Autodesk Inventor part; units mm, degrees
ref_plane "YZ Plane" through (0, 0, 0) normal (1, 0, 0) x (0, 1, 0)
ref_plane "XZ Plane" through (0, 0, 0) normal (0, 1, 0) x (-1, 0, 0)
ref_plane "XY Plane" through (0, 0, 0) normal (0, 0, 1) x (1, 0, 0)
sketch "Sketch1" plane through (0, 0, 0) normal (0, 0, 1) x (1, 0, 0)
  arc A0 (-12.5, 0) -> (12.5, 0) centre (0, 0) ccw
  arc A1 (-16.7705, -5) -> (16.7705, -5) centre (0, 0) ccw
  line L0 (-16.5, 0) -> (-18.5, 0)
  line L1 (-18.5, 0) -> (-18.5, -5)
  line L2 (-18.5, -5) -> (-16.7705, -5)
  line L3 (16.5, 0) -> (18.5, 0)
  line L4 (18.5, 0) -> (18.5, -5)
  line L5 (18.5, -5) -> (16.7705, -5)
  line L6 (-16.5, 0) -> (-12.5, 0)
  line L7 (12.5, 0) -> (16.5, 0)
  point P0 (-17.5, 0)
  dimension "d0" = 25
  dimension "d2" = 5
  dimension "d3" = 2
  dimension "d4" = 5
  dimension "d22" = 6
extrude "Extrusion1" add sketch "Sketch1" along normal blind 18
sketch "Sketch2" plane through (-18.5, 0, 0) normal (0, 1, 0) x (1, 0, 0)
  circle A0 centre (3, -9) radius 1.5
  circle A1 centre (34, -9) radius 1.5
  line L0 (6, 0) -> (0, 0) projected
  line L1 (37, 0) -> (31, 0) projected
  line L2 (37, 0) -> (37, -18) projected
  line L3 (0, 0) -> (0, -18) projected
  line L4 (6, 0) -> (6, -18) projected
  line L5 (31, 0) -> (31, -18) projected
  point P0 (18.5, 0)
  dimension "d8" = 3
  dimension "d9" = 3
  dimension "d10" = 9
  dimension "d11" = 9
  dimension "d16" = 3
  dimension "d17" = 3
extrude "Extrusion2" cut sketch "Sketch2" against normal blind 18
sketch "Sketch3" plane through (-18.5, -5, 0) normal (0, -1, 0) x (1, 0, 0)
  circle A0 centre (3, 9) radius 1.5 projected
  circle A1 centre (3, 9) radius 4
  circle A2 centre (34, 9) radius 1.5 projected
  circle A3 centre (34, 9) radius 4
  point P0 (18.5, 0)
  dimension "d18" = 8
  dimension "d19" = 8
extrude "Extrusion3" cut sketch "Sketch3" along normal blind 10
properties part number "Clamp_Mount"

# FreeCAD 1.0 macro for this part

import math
import FreeCAD as App
import Part
import Sketcher

V = App.Vector
Q = App.Units.Quantity

doc = App.newDocument("Part")
body = doc.addObject("PartDesign::Body", "Body")

# Sketch on XY plane
sketch1 = doc.addObject("Sketcher::SketchObject", "Sketch")
body.addObject(sketch1)
sketch1.AttachmentSupport = (doc.XY_Plane, [""])
sketch1.MapMode = "FlatFace"
sketch1.addGeometry(Part.ArcOfCircle(Part.Circle(V(0, 0, 0), V(0, 0, 1), 12.5), math.radians(180), math.radians(360)), False)
sketch1.addGeometry(Part.LineSegment(V(-12.5, 0, 0), V(-18.5, 0, 0)), False)
sketch1.addGeometry(Part.LineSegment(V(-18.5, 0, 0), V(-18.5, -5, 0)), False)
sketch1.addGeometry(Part.LineSegment(V(-18.5, -5, 0), V(-16.8, -5, 0)), False)
sketch1.addGeometry(Part.ArcOfCircle(Part.Circle(V(0, 0, 0), V(0, 0, 1), 17.5), math.radians(-163), math.radians(-17)), False)
sketch1.addGeometry(Part.LineSegment(V(16.8, -5, 0), V(18.5, -5, 0)), False)
sketch1.addGeometry(Part.LineSegment(V(18.5, -5, 0), V(18.5, 0, 0)), False)
sketch1.addGeometry(Part.LineSegment(V(18.5, 0, 0), V(12.5, 0, 0)), False)
sketch1.addConstraint(Sketcher.Constraint("Coincident", 0, 1, 1, 1))
sketch1.addConstraint(Sketcher.Constraint("Coincident", 1, 2, 2, 1))
sketch1.addConstraint(Sketcher.Constraint("Coincident", 2, 2, 3, 1))
sketch1.addConstraint(Sketcher.Constraint("Coincident", 3, 2, 4, 1))
sketch1.addConstraint(Sketcher.Constraint("Coincident", 4, 2, 5, 1))
sketch1.addConstraint(Sketcher.Constraint("Coincident", 5, 2, 6, 1))
sketch1.addConstraint(Sketcher.Constraint("Coincident", 6, 2, 7, 1))
sketch1.addConstraint(Sketcher.Constraint("Coincident", 7, 2, 0, 2))
sketch1.addConstraint(Sketcher.Constraint("Horizontal", 1))
sketch1.addConstraint(Sketcher.Constraint("Vertical", 2))
sketch1.addConstraint(Sketcher.Constraint("Horizontal", 3))
sketch1.addConstraint(Sketcher.Constraint("Horizontal", 5))
sketch1.addConstraint(Sketcher.Constraint("Vertical", 6))
sketch1.addConstraint(Sketcher.Constraint("Horizontal", 7))
sketch1.addConstraint(Sketcher.Constraint("Coincident", 0, 3, -1, 1))
sketch1.addConstraint(Sketcher.Constraint("Coincident", 4, 3, -1, 1))
sketch1.addConstraint(Sketcher.Constraint("Symmetric", 1, 2, 6, 2, -1, 1))
sketch1.addConstraint(Sketcher.Constraint("PointOnObject", 0, 1, -1))
sketch1.addConstraint(Sketcher.Constraint("Horizontal", 3, 2, 4, 2))
sketch1.addConstraint(Sketcher.Constraint("Radius", 0, Q("12.5 mm")))
sketch1.addConstraint(Sketcher.Constraint("DistanceX", 1, 2, 1, 1, Q("6 mm")))
sketch1.addConstraint(Sketcher.Constraint("DistanceY", 2, 2, 2, 1, Q("5 mm")))
sketch1.addConstraint(Sketcher.Constraint("Radius", 4, Q("17.5 mm")))
pad1 = doc.addObject("PartDesign::Pad", "Pad")
body.addObject(pad1)
pad1.Profile = sketch1
pad1.Length = 18

# Sketch on XZ plane
sketch2 = doc.addObject("Sketcher::SketchObject", "Sketch001")
body.addObject(sketch2)
sketch2.AttachmentSupport = (doc.XZ_Plane, [""])
sketch2.MapMode = "FlatFace"
sketch2.addGeometry(Part.Circle(V(-15.5, 9, 0), V(0, 0, 1), 1.5), False)
sketch2.addGeometry(Part.Circle(V(15.5, 9, 0), V(0, 0, 1), 1.5), False)
sketch2.addConstraint(Sketcher.Constraint("Equal", 0, 1))
sketch2.addConstraint(Sketcher.Constraint("Symmetric", 0, 3, 1, 3, -2))
sketch2.addConstraint(Sketcher.Constraint("Diameter", 0, Q("3 mm")))
sketch2.addConstraint(Sketcher.Constraint("DistanceY", -1, 1, 0, 3, Q("9 mm")))
sketch2.addConstraint(Sketcher.Constraint("DistanceX", 0, 3, 1, 3, Q("31 mm")))
pocket1 = doc.addObject("PartDesign::Pocket", "Pocket")
body.addObject(pocket1)
pocket1.Profile = sketch2
pocket1.Length = 18
pocket1.Reversed = True

# Sketch on XZ plane
sketch3 = doc.addObject("Sketcher::SketchObject", "Sketch002")
body.addObject(sketch3)
sketch3.AttachmentSupport = (doc.XZ_Plane, [""])
sketch3.MapMode = "FlatFace"
sketch3.AttachmentOffset = App.Placement(V(0, 0, 5), App.Rotation())
sketch3.addGeometry(Part.Circle(V(-15.5, 9, 0), V(0, 0, 1), 4), False)
sketch3.addGeometry(Part.Circle(V(-15.5, 9, 0), V(0, 0, 1), 1.5), False)
sketch3.addGeometry(Part.Circle(V(15.5, 9, 0), V(0, 0, 1), 4), False)
sketch3.addGeometry(Part.Circle(V(15.5, 9, 0), V(0, 0, 1), 1.5), False)
sketch3.addConstraint(Sketcher.Constraint("Coincident", 1, 3, 0, 3))
sketch3.addConstraint(Sketcher.Constraint("Coincident", 3, 3, 2, 3))
sketch3.addConstraint(Sketcher.Constraint("Equal", 0, 2))
sketch3.addConstraint(Sketcher.Constraint("Equal", 1, 3))
sketch3.addConstraint(Sketcher.Constraint("Symmetric", 0, 3, 2, 3, -2))
sketch3.addConstraint(Sketcher.Constraint("Diameter", 0, Q("8 mm")))
sketch3.addConstraint(Sketcher.Constraint("Diameter", 1, Q("3 mm")))
sketch3.addConstraint(Sketcher.Constraint("DistanceY", -1, 1, 0, 3, Q("9 mm")))
sketch3.addConstraint(Sketcher.Constraint("DistanceX", 0, 3, 2, 3, Q("31 mm")))
pocket2 = doc.addObject("PartDesign::Pocket", "Pocket001")
body.addObject(pocket2)
pocket2.Profile = sketch3
pocket2.Length = 10
pocket2.Reversed = True

doc.recompute()
